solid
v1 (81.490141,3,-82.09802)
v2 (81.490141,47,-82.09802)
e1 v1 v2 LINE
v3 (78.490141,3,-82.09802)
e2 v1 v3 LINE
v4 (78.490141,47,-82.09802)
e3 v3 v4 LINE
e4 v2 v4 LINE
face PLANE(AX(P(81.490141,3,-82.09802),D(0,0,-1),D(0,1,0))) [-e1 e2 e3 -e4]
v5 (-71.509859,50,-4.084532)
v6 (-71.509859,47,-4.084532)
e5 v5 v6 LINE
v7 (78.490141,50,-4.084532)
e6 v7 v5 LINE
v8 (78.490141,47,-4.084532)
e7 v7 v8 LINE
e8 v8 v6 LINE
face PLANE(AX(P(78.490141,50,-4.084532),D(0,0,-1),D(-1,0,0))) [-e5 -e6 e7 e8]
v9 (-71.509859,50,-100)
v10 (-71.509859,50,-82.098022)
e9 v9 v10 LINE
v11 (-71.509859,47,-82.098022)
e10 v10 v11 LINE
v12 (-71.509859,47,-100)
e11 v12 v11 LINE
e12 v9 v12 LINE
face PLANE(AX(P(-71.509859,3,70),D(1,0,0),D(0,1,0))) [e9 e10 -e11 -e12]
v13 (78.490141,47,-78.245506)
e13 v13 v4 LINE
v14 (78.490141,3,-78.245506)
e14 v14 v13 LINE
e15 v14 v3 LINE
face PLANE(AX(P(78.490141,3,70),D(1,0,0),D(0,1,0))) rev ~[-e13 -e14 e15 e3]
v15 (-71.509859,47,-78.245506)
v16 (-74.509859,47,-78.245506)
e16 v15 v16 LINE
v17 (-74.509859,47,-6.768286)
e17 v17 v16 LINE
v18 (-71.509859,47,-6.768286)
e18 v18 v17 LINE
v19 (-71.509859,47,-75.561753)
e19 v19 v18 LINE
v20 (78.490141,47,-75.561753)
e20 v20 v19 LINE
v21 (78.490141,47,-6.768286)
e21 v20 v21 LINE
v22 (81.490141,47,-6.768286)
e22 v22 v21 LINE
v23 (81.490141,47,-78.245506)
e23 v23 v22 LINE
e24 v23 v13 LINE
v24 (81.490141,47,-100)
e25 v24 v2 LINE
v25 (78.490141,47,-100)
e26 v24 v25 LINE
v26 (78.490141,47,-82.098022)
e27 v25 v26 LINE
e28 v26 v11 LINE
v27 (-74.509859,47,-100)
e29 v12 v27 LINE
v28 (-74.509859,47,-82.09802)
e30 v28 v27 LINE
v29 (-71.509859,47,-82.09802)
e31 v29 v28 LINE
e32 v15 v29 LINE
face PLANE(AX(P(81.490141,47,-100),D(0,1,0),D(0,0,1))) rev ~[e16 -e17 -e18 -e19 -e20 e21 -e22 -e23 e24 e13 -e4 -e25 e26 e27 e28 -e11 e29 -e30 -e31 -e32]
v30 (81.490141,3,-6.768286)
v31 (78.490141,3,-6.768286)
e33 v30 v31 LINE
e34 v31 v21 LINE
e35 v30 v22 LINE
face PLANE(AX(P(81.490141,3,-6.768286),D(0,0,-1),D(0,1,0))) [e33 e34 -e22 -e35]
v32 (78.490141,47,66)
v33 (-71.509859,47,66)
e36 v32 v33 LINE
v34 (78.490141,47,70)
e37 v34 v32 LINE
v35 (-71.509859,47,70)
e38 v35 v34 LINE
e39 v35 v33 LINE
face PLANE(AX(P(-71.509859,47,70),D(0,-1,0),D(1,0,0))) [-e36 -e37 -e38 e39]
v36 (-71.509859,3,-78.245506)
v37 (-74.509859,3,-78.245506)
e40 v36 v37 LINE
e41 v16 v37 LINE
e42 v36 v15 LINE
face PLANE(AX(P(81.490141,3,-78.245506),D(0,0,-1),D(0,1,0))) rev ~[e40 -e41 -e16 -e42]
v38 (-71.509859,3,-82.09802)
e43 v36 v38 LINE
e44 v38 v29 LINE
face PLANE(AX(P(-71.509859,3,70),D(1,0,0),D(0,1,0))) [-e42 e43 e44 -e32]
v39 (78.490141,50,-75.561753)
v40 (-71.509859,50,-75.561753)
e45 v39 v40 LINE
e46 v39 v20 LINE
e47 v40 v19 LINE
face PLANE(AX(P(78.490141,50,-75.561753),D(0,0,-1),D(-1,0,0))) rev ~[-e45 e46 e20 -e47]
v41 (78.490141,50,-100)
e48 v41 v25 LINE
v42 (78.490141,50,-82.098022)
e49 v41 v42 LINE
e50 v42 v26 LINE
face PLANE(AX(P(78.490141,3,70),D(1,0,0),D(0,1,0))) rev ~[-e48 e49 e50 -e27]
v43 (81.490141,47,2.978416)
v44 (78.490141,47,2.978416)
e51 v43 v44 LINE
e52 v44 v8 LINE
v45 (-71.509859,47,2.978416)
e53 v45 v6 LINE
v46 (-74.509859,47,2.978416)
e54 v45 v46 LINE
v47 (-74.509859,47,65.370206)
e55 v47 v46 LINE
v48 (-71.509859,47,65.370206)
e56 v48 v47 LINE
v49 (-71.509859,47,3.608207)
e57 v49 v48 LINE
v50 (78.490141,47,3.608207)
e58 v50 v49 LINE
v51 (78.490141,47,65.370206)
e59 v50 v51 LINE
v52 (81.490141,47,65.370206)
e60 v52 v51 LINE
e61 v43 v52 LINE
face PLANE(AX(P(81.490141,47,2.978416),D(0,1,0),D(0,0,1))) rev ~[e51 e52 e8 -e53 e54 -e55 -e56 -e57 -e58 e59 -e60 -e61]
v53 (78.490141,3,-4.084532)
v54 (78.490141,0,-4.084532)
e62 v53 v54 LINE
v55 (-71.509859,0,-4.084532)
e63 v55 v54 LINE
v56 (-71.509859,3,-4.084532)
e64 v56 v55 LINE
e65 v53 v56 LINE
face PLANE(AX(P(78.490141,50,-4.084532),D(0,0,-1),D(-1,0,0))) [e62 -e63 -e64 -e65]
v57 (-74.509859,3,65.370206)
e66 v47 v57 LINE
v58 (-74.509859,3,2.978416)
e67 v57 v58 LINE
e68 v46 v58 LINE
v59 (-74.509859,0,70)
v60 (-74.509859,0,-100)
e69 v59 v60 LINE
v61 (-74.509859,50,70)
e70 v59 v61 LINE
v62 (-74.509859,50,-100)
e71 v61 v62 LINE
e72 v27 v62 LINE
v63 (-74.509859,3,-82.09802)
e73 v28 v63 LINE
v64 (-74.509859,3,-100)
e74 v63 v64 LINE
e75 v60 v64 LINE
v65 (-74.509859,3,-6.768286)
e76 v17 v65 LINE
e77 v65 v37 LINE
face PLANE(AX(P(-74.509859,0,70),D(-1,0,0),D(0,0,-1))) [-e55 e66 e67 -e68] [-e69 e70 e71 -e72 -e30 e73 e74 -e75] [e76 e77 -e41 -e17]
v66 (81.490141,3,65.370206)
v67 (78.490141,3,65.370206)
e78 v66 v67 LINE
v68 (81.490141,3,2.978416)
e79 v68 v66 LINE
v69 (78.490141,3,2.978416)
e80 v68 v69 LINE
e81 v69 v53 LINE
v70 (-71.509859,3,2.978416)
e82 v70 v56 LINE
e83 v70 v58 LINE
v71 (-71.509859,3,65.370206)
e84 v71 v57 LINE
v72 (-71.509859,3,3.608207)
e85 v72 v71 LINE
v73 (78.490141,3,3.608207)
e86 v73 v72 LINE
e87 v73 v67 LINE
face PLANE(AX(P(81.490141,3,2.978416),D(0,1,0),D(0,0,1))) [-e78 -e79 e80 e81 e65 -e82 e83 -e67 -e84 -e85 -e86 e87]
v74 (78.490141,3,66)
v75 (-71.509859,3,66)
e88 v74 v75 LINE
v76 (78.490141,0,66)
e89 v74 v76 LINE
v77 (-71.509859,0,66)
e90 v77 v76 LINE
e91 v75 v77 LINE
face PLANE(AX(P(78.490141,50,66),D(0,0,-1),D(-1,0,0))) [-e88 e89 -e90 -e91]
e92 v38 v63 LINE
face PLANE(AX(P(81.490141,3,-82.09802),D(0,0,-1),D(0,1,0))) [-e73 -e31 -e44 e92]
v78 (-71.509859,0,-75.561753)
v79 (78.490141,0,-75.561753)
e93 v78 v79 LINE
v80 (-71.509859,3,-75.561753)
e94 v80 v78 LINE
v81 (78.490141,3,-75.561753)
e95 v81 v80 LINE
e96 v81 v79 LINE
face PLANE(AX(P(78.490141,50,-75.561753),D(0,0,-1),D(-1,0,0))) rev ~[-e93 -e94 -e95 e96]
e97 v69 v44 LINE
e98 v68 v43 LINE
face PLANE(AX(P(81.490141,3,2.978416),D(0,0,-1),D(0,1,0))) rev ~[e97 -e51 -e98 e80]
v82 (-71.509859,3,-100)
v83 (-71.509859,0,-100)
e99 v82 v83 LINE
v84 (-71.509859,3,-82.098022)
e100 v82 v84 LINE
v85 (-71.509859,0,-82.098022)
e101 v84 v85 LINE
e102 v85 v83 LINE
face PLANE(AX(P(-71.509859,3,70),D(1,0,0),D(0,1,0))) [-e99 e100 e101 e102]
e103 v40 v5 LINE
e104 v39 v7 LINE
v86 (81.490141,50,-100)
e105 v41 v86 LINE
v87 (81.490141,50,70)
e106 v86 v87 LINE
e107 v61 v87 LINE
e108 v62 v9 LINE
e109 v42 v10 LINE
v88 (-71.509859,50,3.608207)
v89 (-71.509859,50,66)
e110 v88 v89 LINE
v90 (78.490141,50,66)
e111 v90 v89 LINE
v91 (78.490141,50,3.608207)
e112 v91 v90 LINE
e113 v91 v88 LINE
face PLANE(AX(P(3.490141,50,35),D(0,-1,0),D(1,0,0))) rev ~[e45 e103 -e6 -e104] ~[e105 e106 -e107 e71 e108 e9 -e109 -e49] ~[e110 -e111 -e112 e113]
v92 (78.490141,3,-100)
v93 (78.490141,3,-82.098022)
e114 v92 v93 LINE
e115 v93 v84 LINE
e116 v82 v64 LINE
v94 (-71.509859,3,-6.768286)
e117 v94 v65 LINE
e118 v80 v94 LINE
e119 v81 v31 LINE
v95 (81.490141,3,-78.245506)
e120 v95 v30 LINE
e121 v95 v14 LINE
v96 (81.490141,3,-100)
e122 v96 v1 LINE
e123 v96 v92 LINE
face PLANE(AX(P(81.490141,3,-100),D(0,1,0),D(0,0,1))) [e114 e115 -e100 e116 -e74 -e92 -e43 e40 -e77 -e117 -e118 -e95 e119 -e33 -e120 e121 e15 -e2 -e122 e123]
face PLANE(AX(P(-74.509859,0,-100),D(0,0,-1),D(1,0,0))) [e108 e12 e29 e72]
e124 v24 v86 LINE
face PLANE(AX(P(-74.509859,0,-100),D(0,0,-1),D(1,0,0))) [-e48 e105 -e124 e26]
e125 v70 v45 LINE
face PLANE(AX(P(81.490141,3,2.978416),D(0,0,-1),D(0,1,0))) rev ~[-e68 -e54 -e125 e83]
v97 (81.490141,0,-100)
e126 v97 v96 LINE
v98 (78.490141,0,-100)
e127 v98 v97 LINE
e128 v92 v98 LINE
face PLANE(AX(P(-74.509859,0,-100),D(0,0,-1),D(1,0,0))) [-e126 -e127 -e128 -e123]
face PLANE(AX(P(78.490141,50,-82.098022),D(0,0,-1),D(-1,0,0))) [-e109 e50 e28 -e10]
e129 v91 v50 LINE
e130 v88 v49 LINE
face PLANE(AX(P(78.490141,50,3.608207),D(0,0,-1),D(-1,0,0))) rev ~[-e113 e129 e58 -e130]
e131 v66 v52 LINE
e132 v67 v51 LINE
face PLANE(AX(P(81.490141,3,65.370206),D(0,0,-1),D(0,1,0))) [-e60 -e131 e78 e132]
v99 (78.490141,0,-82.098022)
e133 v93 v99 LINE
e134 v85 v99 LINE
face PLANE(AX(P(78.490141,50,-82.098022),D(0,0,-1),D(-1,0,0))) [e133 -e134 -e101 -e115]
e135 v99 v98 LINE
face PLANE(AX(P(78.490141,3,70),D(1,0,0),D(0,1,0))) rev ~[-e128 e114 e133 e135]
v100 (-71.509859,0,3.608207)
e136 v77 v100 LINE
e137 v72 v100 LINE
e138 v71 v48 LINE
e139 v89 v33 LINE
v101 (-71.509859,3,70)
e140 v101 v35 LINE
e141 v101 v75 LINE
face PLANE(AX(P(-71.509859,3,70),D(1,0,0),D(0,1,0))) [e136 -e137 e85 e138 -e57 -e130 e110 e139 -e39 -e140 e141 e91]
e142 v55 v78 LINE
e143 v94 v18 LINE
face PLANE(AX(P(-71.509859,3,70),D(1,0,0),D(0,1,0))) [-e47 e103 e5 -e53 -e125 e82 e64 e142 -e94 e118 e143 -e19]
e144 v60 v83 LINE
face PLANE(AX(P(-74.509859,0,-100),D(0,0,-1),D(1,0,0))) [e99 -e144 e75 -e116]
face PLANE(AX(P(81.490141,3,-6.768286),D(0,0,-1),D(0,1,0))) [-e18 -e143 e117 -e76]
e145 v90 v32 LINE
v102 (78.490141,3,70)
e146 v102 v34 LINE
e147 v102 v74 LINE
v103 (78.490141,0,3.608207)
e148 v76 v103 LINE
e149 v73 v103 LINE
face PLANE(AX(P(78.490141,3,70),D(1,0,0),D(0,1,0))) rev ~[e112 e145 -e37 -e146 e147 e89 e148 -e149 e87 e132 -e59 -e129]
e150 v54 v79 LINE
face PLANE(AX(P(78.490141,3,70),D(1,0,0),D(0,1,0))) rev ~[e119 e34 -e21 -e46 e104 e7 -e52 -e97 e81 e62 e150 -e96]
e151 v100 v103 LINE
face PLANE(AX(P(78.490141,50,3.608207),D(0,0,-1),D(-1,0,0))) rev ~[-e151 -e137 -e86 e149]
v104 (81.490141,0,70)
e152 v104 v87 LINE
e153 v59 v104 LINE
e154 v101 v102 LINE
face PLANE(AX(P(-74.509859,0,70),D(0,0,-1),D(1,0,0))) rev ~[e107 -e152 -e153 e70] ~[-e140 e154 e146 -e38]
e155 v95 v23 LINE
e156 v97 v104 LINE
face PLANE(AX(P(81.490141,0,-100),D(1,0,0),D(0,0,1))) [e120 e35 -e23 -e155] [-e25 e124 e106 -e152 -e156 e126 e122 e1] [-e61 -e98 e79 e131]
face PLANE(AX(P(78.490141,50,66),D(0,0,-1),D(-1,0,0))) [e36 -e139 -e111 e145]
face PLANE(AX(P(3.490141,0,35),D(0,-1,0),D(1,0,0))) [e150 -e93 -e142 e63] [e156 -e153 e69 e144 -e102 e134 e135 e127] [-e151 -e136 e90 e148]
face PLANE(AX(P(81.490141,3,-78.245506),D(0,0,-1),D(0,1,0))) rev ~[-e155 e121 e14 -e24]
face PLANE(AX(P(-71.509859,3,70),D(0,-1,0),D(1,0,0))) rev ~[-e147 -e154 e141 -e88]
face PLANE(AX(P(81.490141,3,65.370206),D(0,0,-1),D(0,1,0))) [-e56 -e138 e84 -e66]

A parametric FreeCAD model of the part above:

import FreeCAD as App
import Part
import Sketcher
from FreeCAD import Vector
Q = App.Units.Quantity


def add_polygon(sketch, points):
    """Adds a closed chain of lines whose ends are joined by coincident constraints."""
    first, n = sketch.GeometryCount, len(points)
    for a, b in zip(points, points[1:] + points[:1]):
        sketch.addGeometry(Part.LineSegment(App.Vector(*a, 0), App.Vector(*b, 0)), False)
    for i in range(n):
        sketch.addConstraint(Sketcher.Constraint("Coincident", first + i, 2, first + (i + 1) % n, 1))

doc = App.newDocument("Part")
body = doc.addObject("PartDesign::Body", "Body")

sketch1 = body.newObject("Sketcher::SketchObject", "Sketch")
sketch1.AttachmentSupport = (doc.getObject("XZ_Plane"), [""])
sketch1.MapMode = "FlatFace"
add_polygon(sketch1, [(-74.509859, 70), (-74.509859, -100), (81.490141, -100), (81.490141, 70)])
sketch1.addConstraint(Sketcher.Constraint("Vertical", 0))
sketch1.addConstraint(Sketcher.Constraint("Horizontal", 1))
sketch1.addConstraint(Sketcher.Constraint("Vertical", 2))
sketch1.addConstraint(Sketcher.Constraint("Horizontal", 3))
sketch1.addConstraint(Sketcher.Constraint("DistanceX", 1, 1, 1, 2, Q("156 mm")))
sketch1.addConstraint(Sketcher.Constraint("DistanceY", 0, 2, 0, 1, Q("170 mm")))
sketch1.addConstraint(Sketcher.Constraint("DistanceY", 0, 2, -1, 1, Q("100 mm")))
sketch1.addConstraint(Sketcher.Constraint("DistanceX", 0, 2, -1, 1, Q("74.509859 mm")))
pad1 = body.newObject("PartDesign::Pad", "Pad")
pad1.Profile = sketch1
pad1.Length = 50
pad1.Reversed = True

sketch2 = body.newObject("Sketcher::SketchObject", "Sketch001")
sketch2.AttachmentSupport = (doc.getObject("XZ_Plane"), [""])
sketch2.MapMode = "FlatFace"
sketch2.AttachmentOffset = App.Placement(Vector(0, 0, -50), App.Rotation())
add_polygon(sketch2, [(78.490141, -82.098022), (78.490141, -100), (-71.509859, -100), (-71.509859, -82.098022)])
add_polygon(sketch2, [(78.490141, -4.084532), (78.490141, -75.561753), (-71.509859, -75.561753), (-71.509859, -4.084532)])
add_polygon(sketch2, [(78.490141, 66), (78.490141, 3.608207), (-71.509859, 3.608207), (-71.509859, 66)])
sketch2.addConstraint(Sketcher.Constraint("Vertical", 0))
sketch2.addConstraint(Sketcher.Constraint("Horizontal", 1))
sketch2.addConstraint(Sketcher.Constraint("Vertical", 2))
sketch2.addConstraint(Sketcher.Constraint("Horizontal", 3))
sketch2.addConstraint(Sketcher.Constraint("Vertical", 4))
sketch2.addConstraint(Sketcher.Constraint("Horizontal", 5))
sketch2.addConstraint(Sketcher.Constraint("Vertical", 6))
sketch2.addConstraint(Sketcher.Constraint("Horizontal", 7))
sketch2.addConstraint(Sketcher.Constraint("Vertical", 8))
sketch2.addConstraint(Sketcher.Constraint("Horizontal", 9))
sketch2.addConstraint(Sketcher.Constraint("Vertical", 10))
sketch2.addConstraint(Sketcher.Constraint("Horizontal", 11))
sketch2.addConstraint(Sketcher.Constraint("Vertical", 3, 2, 4, 2))
sketch2.addConstraint(Sketcher.Constraint("Vertical", 2, 2, 5, 2))
sketch2.addConstraint(Sketcher.Constraint("Vertical", 7, 2, 8, 2))
sketch2.addConstraint(Sketcher.Constraint("Vertical", 6, 2, 9, 2))
sketch2.addConstraint(Sketcher.Constraint("DistanceX", 1, 2, 1, 1, Q("150 mm")))
sketch2.addConstraint(Sketcher.Constraint("DistanceY", 0, 2, -1, 1, Q("100 mm")))
sketch2.addConstraint(Sketcher.Constraint("DistanceY", -1, 1, 10, 2, Q("66 mm")))
sketch2.addConstraint(Sketcher.Constraint("DistanceY", 0, 2, 0, 1, Q("17.901978 mm")))
sketch2.addConstraint(Sketcher.Constraint("DistanceY", 4, 2, 4, 1, Q("71.477221 mm")))
sketch2.addConstraint(Sketcher.Constraint("DistanceY", 8, 2, 8, 1, Q("62.391793 mm")))
sketch2.addConstraint(Sketcher.Constraint("DistanceX", -1, 1, 0, 2, Q("78.490141 mm")))
sketch2.addConstraint(Sketcher.Constraint("DistanceY", 3, 2, 4, 2, Q("6.536269 mm")))
pocket1 = body.newObject("PartDesign::Pocket", "Pocket")
pocket1.Profile = sketch2
pocket1.Length = 70
pocket1.Reversed = True

sketch3 = body.newObject("Sketcher::SketchObject", "Sketch002")
sketch3.AttachmentSupport = (doc.getObject("XY_Plane"), [""])
sketch3.MapMode = "FlatFace"
sketch3.AttachmentOffset = App.Placement(Vector(0, 0, 70), App.Rotation())
add_polygon(sketch3, [(-71.509859, 47), (-71.509859, 3), (78.490141, 3), (78.490141, 47)])
sketch3.addConstraint(Sketcher.Constraint("Vertical", 0))
sketch3.addConstraint(Sketcher.Constraint("Horizontal", 1))
sketch3.addConstraint(Sketcher.Constraint("Vertical", 2))
sketch3.addConstraint(Sketcher.Constraint("Horizontal", 3))
sketch3.addConstraint(Sketcher.Constraint("DistanceX", 1, 1, 1, 2, Q("150 mm")))
sketch3.addConstraint(Sketcher.Constraint("DistanceY", 0, 2, 0, 1, Q("44 mm")))
sketch3.addConstraint(Sketcher.Constraint("DistanceY", -1, 1, 0, 2, Q("3 mm")))
sketch3.addConstraint(Sketcher.Constraint("DistanceX", 0, 2, -1, 1, Q("71.509859 mm")))
pocket2 = body.newObject("PartDesign::Pocket", "Pocket001")
pocket2.Profile = sketch3
pocket2.Length = 200

sketch4 = body.newObject("Sketcher::SketchObject", "Sketch003")
sketch4.AttachmentSupport = (doc.getObject("YZ_Plane"), [""])
sketch4.MapMode = "FlatFace"
sketch4.AttachmentOffset = App.Placement(Vector(0, 0, 81.490141), App.Rotation())
add_polygon(sketch4, [(3, -82.09802), (3, -100), (47, -100), (47, -82.09802)])
add_polygon(sketch4, [(3, -6.768286), (3, -78.245506), (47, -78.245506), (47, -6.768286)])
add_polygon(sketch4, [(3, 65.370206), (3, 2.978416), (47, 2.978416), (47, 65.370206)])
sketch4.addConstraint(Sketcher.Constraint("Vertical", 0))
sketch4.addConstraint(Sketcher.Constraint("Horizontal", 1))
sketch4.addConstraint(Sketcher.Constraint("Vertical", 2))
sketch4.addConstraint(Sketcher.Constraint("Horizontal", 3))
sketch4.addConstraint(Sketcher.Constraint("Vertical", 4))
sketch4.addConstraint(Sketcher.Constraint("Horizontal", 5))
sketch4.addConstraint(Sketcher.Constraint("Vertical", 6))
sketch4.addConstraint(Sketcher.Constraint("Horizontal", 7))
sketch4.addConstraint(Sketcher.Constraint("Vertical", 8))
sketch4.addConstraint(Sketcher.Constraint("Horizontal", 9))
sketch4.addConstraint(Sketcher.Constraint("Vertical", 10))
sketch4.addConstraint(Sketcher.Constraint("Horizontal", 11))
sketch4.addConstraint(Sketcher.Constraint("Vertical", 3, 2, 4, 2))
sketch4.addConstraint(Sketcher.Constraint("Vertical", 2, 2, 5, 2))
sketch4.addConstraint(Sketcher.Constraint("Vertical", 7, 2, 8, 2))
sketch4.addConstraint(Sketcher.Constraint("Vertical", 6, 2, 9, 2))
sketch4.addConstraint(Sketcher.Constraint("DistanceX", 1, 1, 1, 2, Q("44 mm")))
sketch4.addConstraint(Sketcher.Constraint("DistanceX", -1, 1, 0, 2, Q("3 mm")))
sketch4.addConstraint(Sketcher.Constraint("DistanceY", 0, 2, -1, 1, Q("100 mm")))
sketch4.addConstraint(Sketcher.Constraint("DistanceY", 0, 2, 0, 1, Q("17.90198 mm")))
sketch4.addConstraint(Sketcher.Constraint("DistanceY", 4, 2, 4, 1, Q("71.47722 mm")))
sketch4.addConstraint(Sketcher.Constraint("DistanceY", 8, 2, 8, 1, Q("62.39179 mm")))
sketch4.addConstraint(Sketcher.Constraint("DistanceY", 7, 2, 8, 2, Q("9.746702 mm")))
sketch4.addConstraint(Sketcher.Constraint("DistanceY", 4, 2, -1, 1, Q("78.245506 mm")))
pocket3 = body.newObject("PartDesign::Pocket", "Pocket002")
pocket3.Profile = sketch4
pocket3.Length = 200

doc.recompute()
